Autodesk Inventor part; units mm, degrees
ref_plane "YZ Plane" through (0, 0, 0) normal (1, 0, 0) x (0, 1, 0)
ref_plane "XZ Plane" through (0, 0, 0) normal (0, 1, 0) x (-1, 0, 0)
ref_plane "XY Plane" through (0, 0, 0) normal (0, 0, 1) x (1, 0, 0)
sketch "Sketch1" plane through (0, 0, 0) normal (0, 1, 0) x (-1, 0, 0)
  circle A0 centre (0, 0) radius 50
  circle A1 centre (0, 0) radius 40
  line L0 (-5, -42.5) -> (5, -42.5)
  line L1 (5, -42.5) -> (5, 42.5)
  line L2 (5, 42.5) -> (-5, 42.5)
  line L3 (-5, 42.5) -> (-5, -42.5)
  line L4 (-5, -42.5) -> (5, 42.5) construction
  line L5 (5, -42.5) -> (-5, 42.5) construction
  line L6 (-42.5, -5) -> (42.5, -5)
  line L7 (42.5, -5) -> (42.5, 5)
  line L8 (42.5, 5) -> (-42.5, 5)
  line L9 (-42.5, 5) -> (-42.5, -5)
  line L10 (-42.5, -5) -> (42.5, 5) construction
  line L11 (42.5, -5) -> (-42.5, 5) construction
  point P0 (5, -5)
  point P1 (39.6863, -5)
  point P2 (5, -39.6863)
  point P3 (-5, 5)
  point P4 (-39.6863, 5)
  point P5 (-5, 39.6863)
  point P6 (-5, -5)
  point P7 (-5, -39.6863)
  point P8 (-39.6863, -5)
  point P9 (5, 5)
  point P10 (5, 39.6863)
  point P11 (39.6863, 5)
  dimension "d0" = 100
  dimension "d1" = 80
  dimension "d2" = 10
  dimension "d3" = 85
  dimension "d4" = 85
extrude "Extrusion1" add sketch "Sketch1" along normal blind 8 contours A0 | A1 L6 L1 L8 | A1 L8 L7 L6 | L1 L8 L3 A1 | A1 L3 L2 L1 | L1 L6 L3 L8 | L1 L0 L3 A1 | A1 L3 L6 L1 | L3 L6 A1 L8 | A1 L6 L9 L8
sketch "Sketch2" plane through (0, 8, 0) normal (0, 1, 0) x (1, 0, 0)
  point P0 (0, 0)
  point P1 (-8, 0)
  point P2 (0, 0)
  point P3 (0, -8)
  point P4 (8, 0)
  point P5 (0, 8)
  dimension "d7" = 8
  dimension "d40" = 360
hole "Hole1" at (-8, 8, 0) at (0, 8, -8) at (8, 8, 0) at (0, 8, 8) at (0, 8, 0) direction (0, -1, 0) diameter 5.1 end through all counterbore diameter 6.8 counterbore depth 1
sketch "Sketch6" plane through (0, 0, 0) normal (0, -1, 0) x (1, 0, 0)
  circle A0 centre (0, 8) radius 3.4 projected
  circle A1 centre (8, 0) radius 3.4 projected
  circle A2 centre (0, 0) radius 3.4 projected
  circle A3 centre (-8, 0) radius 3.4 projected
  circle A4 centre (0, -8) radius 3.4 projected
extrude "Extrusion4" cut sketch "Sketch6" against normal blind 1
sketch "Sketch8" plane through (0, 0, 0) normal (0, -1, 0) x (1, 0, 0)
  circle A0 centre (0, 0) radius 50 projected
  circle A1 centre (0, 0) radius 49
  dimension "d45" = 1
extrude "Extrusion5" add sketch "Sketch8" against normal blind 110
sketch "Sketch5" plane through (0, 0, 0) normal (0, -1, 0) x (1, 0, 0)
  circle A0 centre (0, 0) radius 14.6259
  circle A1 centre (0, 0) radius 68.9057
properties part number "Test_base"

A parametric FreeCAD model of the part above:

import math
import FreeCAD as App
import Part
import Sketcher
from FreeCAD import Vector

doc = App.newDocument("Part")
body = doc.addObject("PartDesign::Body", "Body")

# Sketch on XZ plane
sketch1 = body.newObject("Sketcher::SketchObject", "Sketch")
sketch1.AttachmentSupport = (doc.getObject("XZ_Plane"), [""])
sketch1.MapMode = "FlatFace"
sketch1.addGeometry(Part.Circle(Vector(0, 0, 0), Vector(0, 0, 1), 50), False)
sketch1.addGeometry(Part.ArcOfCircle(Part.Circle(Vector(0, 0, 0), Vector(0, 0, 1), 40), math.radians(97), math.radians(173)), False)
sketch1.addGeometry(Part.LineSegment(Vector(-40, 5, 0), Vector(-5, 5, 0)), False)
sketch1.addGeometry(Part.LineSegment(Vector(-5, 5, 0), Vector(-5, 40, 0)), False)
sketch1.addGeometry(Part.ArcOfCircle(Part.Circle(Vector(0, 0, 0), Vector(0, 0, 1), 40), math.radians(7), math.radians(83)), False)
sketch1.addGeometry(Part.LineSegment(Vector(5, 40, 0), Vector(5, 5, 0)), False)
sketch1.addGeometry(Part.LineSegment(Vector(5, 5, 0), Vector(40, 5, 0)), False)
sketch1.addGeometry(Part.ArcOfCircle(Part.Circle(Vector(0, 0, 0), Vector(0, 0, 1), 40), math.radians(-83), math.radians(-7)), False)
sketch1.addGeometry(Part.LineSegment(Vector(40, -5, 0), Vector(5, -5, 0)), False)
sketch1.addGeometry(Part.LineSegment(Vector(5, -5, 0), Vector(5, -40, 0)), False)
sketch1.addGeometry(Part.ArcOfCircle(Part.Circle(Vector(0, 0, 0), Vector(0, 0, 1), 40), math.radians(-173), math.radians(-97)), False)
sketch1.addGeometry(Part.LineSegment(Vector(-5, -40, 0), Vector(-5, -5, 0)), False)
sketch1.addGeometry(Part.LineSegment(Vector(-5, -5, 0), Vector(-40, -5, 0)), False)
sketch1.addConstraint(Sketcher.Constraint("Coincident", 1, 2, 2, 1))
sketch1.addConstraint(Sketcher.Constraint("Coincident", 2, 2, 3, 1))
sketch1.addConstraint(Sketcher.Constraint("Coincident", 3, 2, 1, 1))
sketch1.addConstraint(Sketcher.Constraint("Coincident", 4, 2, 5, 1))
sketch1.addConstraint(Sketcher.Constraint("Coincident", 5, 2, 6, 1))
sketch1.addConstraint(Sketcher.Constraint("Coincident", 6, 2, 4, 1))
sketch1.addConstraint(Sketcher.Constraint("Coincident", 7, 2, 8, 1))
sketch1.addConstraint(Sketcher.Constraint("Coincident", 8, 2, 9, 1))
sketch1.addConstraint(Sketcher.Constraint("Coincident", 9, 2, 7, 1))
sketch1.addConstraint(Sketcher.Constraint("Coincident", 10, 2, 11, 1))
sketch1.addConstraint(Sketcher.Constraint("Coincident", 11, 2, 12, 1))
sketch1.addConstraint(Sketcher.Constraint("Coincident", 12, 2, 10, 1))
sketch1.addConstraint(Sketcher.Constraint("Horizontal", 2))
sketch1.addConstraint(Sketcher.Constraint("Vertical", 3))
sketch1.addConstraint(Sketcher.Constraint("Vertical", 5))
sketch1.addConstraint(Sketcher.Constraint("Horizontal", 6))
sketch1.addConstraint(Sketcher.Constraint("Horizontal", 8))
sketch1.addConstraint(Sketcher.Constraint("Vertical", 9))
sketch1.addConstraint(Sketcher.Constraint("Vertical", 11))
sketch1.addConstraint(Sketcher.Constraint("Horizontal", 12))
sketch1.addConstraint(Sketcher.Constraint("Coincident", 0, 3, -1, 1))
sketch1.addConstraint(Sketcher.Constraint("Coincident", 1, 3, -1, 1))
sketch1.addConstraint(Sketcher.Constraint("Coincident", 4, 3, -1, 1))
sketch1.addConstraint(Sketcher.Constraint("Coincident", 7, 3, -1, 1))
sketch1.addConstraint(Sketcher.Constraint("Coincident", 10, 3, -1, 1))
sketch1.addConstraint(Sketcher.Constraint("Equal", 1, 4))
sketch1.addConstraint(Sketcher.Constraint("Equal", 4, 7))
sketch1.addConstraint(Sketcher.Constraint("Equal", 7, 10))
sketch1.addConstraint(Sketcher.Constraint("Symmetric", 2, 2, 8, 2, -1, 1))
sketch1.addConstraint(Sketcher.Constraint("Symmetric", 5, 2, 11, 2, -1, 1))
sketch1.addConstraint(Sketcher.Constraint("Symmetric", 2, 2, 5, 2, -2))
sketch1.addConstraint(Sketcher.Constraint("Equal", 12, 3))
sketch1.addConstraint(Sketcher.Constraint("Diameter", 0, 100.0))
sketch1.addConstraint(Sketcher.Constraint("Radius", 1, 40.0))
sketch1.addConstraint(Sketcher.Constraint("DistanceX", 3, 2, 4, 2, 10.0))
pad1 = body.newObject("PartDesign::Pad", "Pad")
pad1.Profile = sketch1
pad1.Length = 8
pad1.Reversed = True

# Sketch on XZ plane
sketch2 = body.newObject("Sketcher::SketchObject", "Sketch001")
sketch2.AttachmentSupport = (doc.getObject("XZ_Plane"), [""])
sketch2.MapMode = "FlatFace"
sketch2.AttachmentOffset = App.Placement(Vector(0, 0, -8), App.Rotation())
sketch2.addGeometry(Part.Circle(Vector(-8, 0, 0), Vector(0, 0, 1), 2.5), False)
sketch2.addGeometry(Part.Circle(Vector(0, -8, 0), Vector(0, 0, 1), 2.5), False)
sketch2.addGeometry(Part.Circle(Vector(8, 0, 0), Vector(0, 0, 1), 2.5), False)
sketch2.addGeometry(Part.Circle(Vector(0, 8, 0), Vector(0, 0, 1), 2.5), False)
sketch2.addGeometry(Part.Circle(Vector(0, 0, 0), Vector(0, 0, 1), 2.5), False)
sketch2.addConstraint(Sketcher.Constraint("Coincident", 4, 3, -1, 1))
sketch2.addConstraint(Sketcher.Constraint("Equal", 0, 1))
sketch2.addConstraint(Sketcher.Constraint("Equal", 1, 2))
sketch2.addConstraint(Sketcher.Constraint("Equal", 2, 3))
sketch2.addConstraint(Sketcher.Constraint("Equal", 3, 4))
sketch2.addConstraint(Sketcher.Constraint("Symmetric", 0, 3, 2, 3, -1, 1))
sketch2.addConstraint(Sketcher.Constraint("Symmetric", 1, 3, 3, 3, -1, 1))
sketch2.addConstraint(Sketcher.Constraint("PointOnObject", 0, 3, -1))
sketch2.addConstraint(Sketcher.Constraint("PointOnObject", 1, 3, -2))
sketch2.addConstraint(Sketcher.Constraint("Diameter", 0, 5.1))
sketch2.addConstraint(Sketcher.Constraint("DistanceX", 0, 3, -1, 1, 8.0))
sketch2.addConstraint(Sketcher.Constraint("DistanceY", 1, 3, -1, 1, 8.0))
doc.recompute()
hole = body.newObject("PartDesign::Hole", "Hole")
hole.Profile = sketch2
hole.ThreadType = "None"
hole.Diameter = 5.1
hole.DepthType = "ThroughAll"
hole.HoleCutType = "Counterbore"
hole.HoleCutDiameter = 6.8
hole.HoleCutDepth = 1
hole.Reversed = True

# Sketch on XZ plane
sketch3 = body.newObject("Sketcher::SketchObject", "Sketch002")
sketch3.AttachmentSupport = (doc.getObject("XZ_Plane"), [""])
sketch3.MapMode = "FlatFace"
sketch3.addGeometry(Part.Circle(Vector(0, 8, 0), Vector(0, 0, 1), 3.4), False)
sketch3.addGeometry(Part.Circle(Vector(8, 0, 0), Vector(0, 0, 1), 3.4), False)
sketch3.addGeometry(Part.Circle(Vector(0, 0, 0), Vector(0, 0, 1), 3.4), False)
sketch3.addGeometry(Part.Circle(Vector(-8, 0, 0), Vector(0, 0, 1), 3.4), False)
sketch3.addGeometry(Part.Circle(Vector(0, -8, 0), Vector(0, 0, 1), 3.4), False)
sketch3.addConstraint(Sketcher.Constraint("Coincident", 2, 3, -1, 1))
sketch3.addConstraint(Sketcher.Constraint("Equal", 0, 1))
sketch3.addConstraint(Sketcher.Constraint("Equal", 1, 2))
sketch3.addConstraint(Sketcher.Constraint("Equal", 2, 3))
sketch3.addConstraint(Sketcher.Constraint("Equal", 3, 4))
sketch3.addConstraint(Sketcher.Constraint("Symmetric", 1, 3, 3, 3, -1, 1))
sketch3.addConstraint(Sketcher.Constraint("Symmetric", 0, 3, 4, 3, -1, 1))
sketch3.addConstraint(Sketcher.Constraint("PointOnObject", 0, 3, -2))
sketch3.addConstraint(Sketcher.Constraint("PointOnObject", 1, 3, -1))
sketch3.addConstraint(Sketcher.Constraint("Diameter", 0, 6.8))
sketch3.addConstraint(Sketcher.Constraint("DistanceY", -1, 1, 0, 3, 8.0))
sketch3.addConstraint(Sketcher.Constraint("DistanceX", -1, 1, 1, 3, 8.0))
pocket1 = body.newObject("PartDesign::Pocket", "Pocket")
pocket1.Profile = sketch3
pocket1.Length = 1

# Sketch on XZ plane
sketch4 = body.newObject("Sketcher::SketchObject", "Sketch003")
sketch4.AttachmentSupport = (doc.getObject("XZ_Plane"), [""])
sketch4.MapMode = "FlatFace"
sketch4.addGeometry(Part.Circle(Vector(0, 0, 0), Vector(0, 0, 1), 50), False)
sketch4.addGeometry(Part.Circle(Vector(0, 0, 0), Vector(0, 0, 1), 49), False)
sketch4.addConstraint(Sketcher.Constraint("Coincident", 0, 3, -1, 1))
sketch4.addConstraint(Sketcher.Constraint("Coincident", 1, 3, -1, 1))
sketch4.addConstraint(Sketcher.Constraint("Diameter", 0, 100.0))
sketch4.addConstraint(Sketcher.Constraint("Diameter", 1, 98.0))
pad2 = body.newObject("PartDesign::Pad", "Pad001")
pad2.Profile = sketch4
pad2.Length = 110
pad2.Reversed = True

doc.recompute()
